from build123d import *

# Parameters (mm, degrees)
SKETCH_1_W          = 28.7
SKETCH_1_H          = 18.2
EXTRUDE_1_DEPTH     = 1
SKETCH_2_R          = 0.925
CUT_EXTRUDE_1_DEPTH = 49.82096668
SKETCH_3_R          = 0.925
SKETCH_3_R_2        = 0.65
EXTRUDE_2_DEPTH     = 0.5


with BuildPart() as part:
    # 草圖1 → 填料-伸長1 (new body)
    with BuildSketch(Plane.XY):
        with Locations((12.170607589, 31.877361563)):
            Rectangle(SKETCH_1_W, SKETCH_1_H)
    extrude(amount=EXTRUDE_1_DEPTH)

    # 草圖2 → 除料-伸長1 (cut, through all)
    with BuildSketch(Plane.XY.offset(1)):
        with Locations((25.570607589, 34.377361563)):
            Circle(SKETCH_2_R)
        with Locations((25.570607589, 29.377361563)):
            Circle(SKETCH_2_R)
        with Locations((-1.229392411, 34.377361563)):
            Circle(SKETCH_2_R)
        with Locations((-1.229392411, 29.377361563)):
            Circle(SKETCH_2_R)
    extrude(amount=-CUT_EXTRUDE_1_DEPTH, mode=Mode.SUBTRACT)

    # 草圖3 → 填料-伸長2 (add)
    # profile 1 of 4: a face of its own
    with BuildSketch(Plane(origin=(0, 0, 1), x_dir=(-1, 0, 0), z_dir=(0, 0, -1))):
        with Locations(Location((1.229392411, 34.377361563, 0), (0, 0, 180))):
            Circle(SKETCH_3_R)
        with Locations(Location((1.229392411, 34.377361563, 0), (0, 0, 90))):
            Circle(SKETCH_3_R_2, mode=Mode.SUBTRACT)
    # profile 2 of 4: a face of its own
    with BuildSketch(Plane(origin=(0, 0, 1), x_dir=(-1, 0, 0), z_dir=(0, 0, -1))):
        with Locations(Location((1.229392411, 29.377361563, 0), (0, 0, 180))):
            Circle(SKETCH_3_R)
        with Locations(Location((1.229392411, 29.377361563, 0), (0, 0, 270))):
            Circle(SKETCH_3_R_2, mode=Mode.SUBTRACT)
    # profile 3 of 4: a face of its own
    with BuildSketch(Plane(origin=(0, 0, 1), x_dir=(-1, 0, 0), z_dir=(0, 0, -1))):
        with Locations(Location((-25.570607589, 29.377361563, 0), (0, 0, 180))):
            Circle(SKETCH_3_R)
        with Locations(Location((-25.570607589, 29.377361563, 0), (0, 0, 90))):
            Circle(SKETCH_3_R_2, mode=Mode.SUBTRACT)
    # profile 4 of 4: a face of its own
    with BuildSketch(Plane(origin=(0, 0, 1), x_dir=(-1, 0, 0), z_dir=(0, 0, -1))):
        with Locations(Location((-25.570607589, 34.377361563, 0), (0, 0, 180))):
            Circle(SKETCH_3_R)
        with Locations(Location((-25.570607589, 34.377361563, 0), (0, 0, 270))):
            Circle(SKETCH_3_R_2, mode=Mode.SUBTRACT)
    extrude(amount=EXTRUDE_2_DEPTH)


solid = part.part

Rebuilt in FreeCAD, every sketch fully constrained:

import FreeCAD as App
import Part
import Sketcher

V = App.Vector

doc = App.newDocument("Part")
params = doc.addObject("Spreadsheet::Sheet", "Params")
for row, (alias, value) in enumerate([
    ("sketch1_width", "28.7 mm"),
    ("sketch1_height", "18.2 mm"),
    ("pad1_length", "1 mm"),
    ("sketch2_diameter", "1.85 mm"),
    ("sketch3_diameter", "1.3 mm"),
    ("sketch3_diameter2", "1.85 mm"),
    ("pad2_length", "0.5 mm"),
], start=1):
    params.set(f"A{row}", alias)
    params.set(f"B{row}", "=" + value)
    params.setAlias(f"B{row}", alias)

body = doc.addObject("PartDesign::Body", "Body")

# Sketch on XY plane
sketch1 = doc.addObject("Sketcher::SketchObject", "Sketch")
body.addObject(sketch1)
sketch1.AttachmentSupport = (doc.XY_Plane, [""])
sketch1.MapMode = "FlatFace"
sketch1.addGeometry(Part.LineSegment(V(-2, 41, 0), V(-2, 23, 0)), False)
sketch1.addGeometry(Part.LineSegment(V(-2, 23, 0), V(27, 23, 0)), False)
sketch1.addGeometry(Part.LineSegment(V(27, 23, 0), V(27, 41, 0)), False)
sketch1.addGeometry(Part.LineSegment(V(27, 41, 0), V(-2, 41, 0)), False)
sketch1.addConstraint(Sketcher.Constraint("Coincident", 0, 2, 1, 1))
sketch1.addConstraint(Sketcher.Constraint("Coincident", 1, 2, 2, 1))
sketch1.addConstraint(Sketcher.Constraint("Coincident", 2, 2, 3, 1))
sketch1.addConstraint(Sketcher.Constraint("Coincident", 3, 2, 0, 1))
sketch1.addConstraint(Sketcher.Constraint("Vertical", 0))
sketch1.addConstraint(Sketcher.Constraint("Horizontal", 1))
sketch1.addConstraint(Sketcher.Constraint("Vertical", 2))
sketch1.addConstraint(Sketcher.Constraint("Horizontal", 3))
sketch1.addConstraint(Sketcher.Constraint("DistanceX", 1, 1, 1, 2, 28.7))
sketch1.addConstraint(Sketcher.Constraint("DistanceY", 0, 2, 0, 1, 18.2))
sketch1.addConstraint(Sketcher.Constraint("DistanceY", -1, 1, 0, 2, 22.777362))
sketch1.addConstraint(Sketcher.Constraint("DistanceX", 0, 2, -1, 1, 2.179392))
sketch1.setExpression("Constraints[8]", "Params.sketch1_width")
sketch1.setExpression("Constraints[9]", "Params.sketch1_height")
pad1 = doc.addObject("PartDesign::Pad", "Pad")
body.addObject(pad1)
pad1.Profile = sketch1
pad1.setExpression("Length", "Params.pad1_length")

# Sketch on XY plane
sketch2 = doc.addObject("Sketcher::SketchObject", "Sketch001")
body.addObject(sketch2)
sketch2.AttachmentSupport = (doc.XY_Plane, [""])
sketch2.MapMode = "FlatFace"
sketch2.AttachmentOffset = App.Placement(V(0, 0, 1), App.Rotation())
sketch2.addGeometry(Part.Circle(V(25.6, 34.4, 0), V(0, 0, 1), 0.9), False)
sketch2.addGeometry(Part.Circle(V(25.6, 29.4, 0), V(0, 0, 1), 0.9), False)
sketch2.addGeometry(Part.Circle(V(-1.2, 34.4, 0), V(0, 0, 1), 0.9), False)
sketch2.addGeometry(Part.Circle(V(-1.2, 29.4, 0), V(0, 0, 1), 0.9), False)
sketch2.addConstraint(Sketcher.Constraint("Equal", 0, 1))
sketch2.addConstraint(Sketcher.Constraint("Equal", 1, 2))
sketch2.addConstraint(Sketcher.Constraint("Equal", 2, 3))
sketch2.addConstraint(Sketcher.Constraint("Horizontal", 0, 3, 2, 3))
sketch2.addConstraint(Sketcher.Constraint("Horizontal", 1, 3, 3, 3))
sketch2.addConstraint(Sketcher.Constraint("Vertical", 0, 3, 1, 3))
sketch2.addConstraint(Sketcher.Constraint("Vertical", 2, 3, 3, 3))
sketch2.addConstraint(Sketcher.Constraint("Diameter", 0, 1.85))
sketch2.addConstraint(Sketcher.Constraint("DistanceY", 1, 3, 0, 3, 5.0))
sketch2.addConstraint(Sketcher.Constraint("DistanceX", 2, 3, 0, 3, 26.8))
sketch2.addConstraint(Sketcher.Constraint("DistanceY", -1, 1, 0, 3, 34.377362))
sketch2.addConstraint(Sketcher.Constraint("DistanceX", -1, 1, 0, 3, 25.570608))
sketch2.setExpression("Constraints[7]", "Params.sketch2_diameter")
pocket1 = doc.addObject("PartDesign::Pocket", "Pocket")
body.addObject(pocket1)
pocket1.Profile = sketch2
pocket1.Type = "ThroughAll"

# Sketch on XY plane
sketch3 = doc.addObject("Sketcher::SketchObject", "Sketch002")
body.addObject(sketch3)
sketch3.AttachmentSupport = (doc.XY_Plane, [""])
sketch3.MapMode = "FlatFace"
sketch3.AttachmentOffset = App.Placement(V(0, 0, 1), App.Rotation())
sketch3.addGeometry(Part.Circle(V(-1.2, 34.4, 0), V(0, 0, 1), 0.9), False)
sketch3.addGeometry(Part.Circle(V(-1.2, 34.4, 0), V(0, 0, 1), 0.7), False)
sketch3.addGeometry(Part.Circle(V(-1.2, 29.4, 0), V(0, 0, 1), 0.9), False)
sketch3.addGeometry(Part.Circle(V(-1.2, 29.4, 0), V(0, 0, 1), 0.7), False)
sketch3.addGeometry(Part.Circle(V(25.6, 29.4, 0), V(0, 0, 1), 0.9), False)
sketch3.addGeometry(Part.Circle(V(25.6, 29.4, 0), V(0, 0, 1), 0.7), False)
sketch3.addGeometry(Part.Circle(V(25.6, 34.4, 0), V(0, 0, 1), 0.9), False)
sketch3.addGeometry(Part.Circle(V(25.6, 34.4, 0), V(0, 0, 1), 0.7), False)
sketch3.addConstraint(Sketcher.Constraint("Coincident", 1, 3, 0, 3))
sketch3.addConstraint(Sketcher.Constraint("Coincident", 3, 3, 2, 3))
sketch3.addConstraint(Sketcher.Constraint("Coincident", 5, 3, 4, 3))
sketch3.addConstraint(Sketcher.Constraint("Coincident", 7, 3, 6, 3))
sketch3.addConstraint(Sketcher.Constraint("Equal", 0, 2))
sketch3.addConstraint(Sketcher.Constraint("Equal", 1, 3))
sketch3.addConstraint(Sketcher.Constraint("Equal", 2, 4))
sketch3.addConstraint(Sketcher.Constraint("Equal", 3, 5))
sketch3.addConstraint(Sketcher.Constraint("Equal", 4, 6))
sketch3.addConstraint(Sketcher.Constraint("Equal", 5, 7))
sketch3.addConstraint(Sketcher.Constraint("Horizontal", 3, 3, 4, 3))
sketch3.addConstraint(Sketcher.Constraint("Horizontal", 1, 3, 6, 3))
sketch3.addConstraint(Sketcher.Constraint("Vertical", 1, 3, 2, 3))
sketch3.addConstraint(Sketcher.Constraint("Vertical", 5, 3, 6, 3))
sketch3.addConstraint(Sketcher.Constraint("Diameter", 1, 1.3))
sketch3.addConstraint(Sketcher.Constraint("Diameter", 0, 1.85))
sketch3.addConstraint(Sketcher.Constraint("DistanceY", 2, 3, 0, 3, 5.0))
sketch3.addConstraint(Sketcher.Constraint("DistanceX", 2, 3, 4, 3, 26.8))
sketch3.addConstraint(Sketcher.Constraint("DistanceY", -1, 1, 0, 3, 34.377362))
sketch3.addConstraint(Sketcher.Constraint("DistanceX", 0, 3, -1, 1, 1.229392))
sketch3.setExpression("Constraints[14]", "Params.sketch3_diameter")
sketch3.setExpression("Constraints[15]", "Params.sketch3_diameter2")
pad2 = doc.addObject("PartDesign::Pad", "Pad001")
body.addObject(pad2)
pad2.Profile = sketch3
pad2.setExpression("Length", "Params.pad2_length")
pad2.Reversed = True

doc.recompute()
